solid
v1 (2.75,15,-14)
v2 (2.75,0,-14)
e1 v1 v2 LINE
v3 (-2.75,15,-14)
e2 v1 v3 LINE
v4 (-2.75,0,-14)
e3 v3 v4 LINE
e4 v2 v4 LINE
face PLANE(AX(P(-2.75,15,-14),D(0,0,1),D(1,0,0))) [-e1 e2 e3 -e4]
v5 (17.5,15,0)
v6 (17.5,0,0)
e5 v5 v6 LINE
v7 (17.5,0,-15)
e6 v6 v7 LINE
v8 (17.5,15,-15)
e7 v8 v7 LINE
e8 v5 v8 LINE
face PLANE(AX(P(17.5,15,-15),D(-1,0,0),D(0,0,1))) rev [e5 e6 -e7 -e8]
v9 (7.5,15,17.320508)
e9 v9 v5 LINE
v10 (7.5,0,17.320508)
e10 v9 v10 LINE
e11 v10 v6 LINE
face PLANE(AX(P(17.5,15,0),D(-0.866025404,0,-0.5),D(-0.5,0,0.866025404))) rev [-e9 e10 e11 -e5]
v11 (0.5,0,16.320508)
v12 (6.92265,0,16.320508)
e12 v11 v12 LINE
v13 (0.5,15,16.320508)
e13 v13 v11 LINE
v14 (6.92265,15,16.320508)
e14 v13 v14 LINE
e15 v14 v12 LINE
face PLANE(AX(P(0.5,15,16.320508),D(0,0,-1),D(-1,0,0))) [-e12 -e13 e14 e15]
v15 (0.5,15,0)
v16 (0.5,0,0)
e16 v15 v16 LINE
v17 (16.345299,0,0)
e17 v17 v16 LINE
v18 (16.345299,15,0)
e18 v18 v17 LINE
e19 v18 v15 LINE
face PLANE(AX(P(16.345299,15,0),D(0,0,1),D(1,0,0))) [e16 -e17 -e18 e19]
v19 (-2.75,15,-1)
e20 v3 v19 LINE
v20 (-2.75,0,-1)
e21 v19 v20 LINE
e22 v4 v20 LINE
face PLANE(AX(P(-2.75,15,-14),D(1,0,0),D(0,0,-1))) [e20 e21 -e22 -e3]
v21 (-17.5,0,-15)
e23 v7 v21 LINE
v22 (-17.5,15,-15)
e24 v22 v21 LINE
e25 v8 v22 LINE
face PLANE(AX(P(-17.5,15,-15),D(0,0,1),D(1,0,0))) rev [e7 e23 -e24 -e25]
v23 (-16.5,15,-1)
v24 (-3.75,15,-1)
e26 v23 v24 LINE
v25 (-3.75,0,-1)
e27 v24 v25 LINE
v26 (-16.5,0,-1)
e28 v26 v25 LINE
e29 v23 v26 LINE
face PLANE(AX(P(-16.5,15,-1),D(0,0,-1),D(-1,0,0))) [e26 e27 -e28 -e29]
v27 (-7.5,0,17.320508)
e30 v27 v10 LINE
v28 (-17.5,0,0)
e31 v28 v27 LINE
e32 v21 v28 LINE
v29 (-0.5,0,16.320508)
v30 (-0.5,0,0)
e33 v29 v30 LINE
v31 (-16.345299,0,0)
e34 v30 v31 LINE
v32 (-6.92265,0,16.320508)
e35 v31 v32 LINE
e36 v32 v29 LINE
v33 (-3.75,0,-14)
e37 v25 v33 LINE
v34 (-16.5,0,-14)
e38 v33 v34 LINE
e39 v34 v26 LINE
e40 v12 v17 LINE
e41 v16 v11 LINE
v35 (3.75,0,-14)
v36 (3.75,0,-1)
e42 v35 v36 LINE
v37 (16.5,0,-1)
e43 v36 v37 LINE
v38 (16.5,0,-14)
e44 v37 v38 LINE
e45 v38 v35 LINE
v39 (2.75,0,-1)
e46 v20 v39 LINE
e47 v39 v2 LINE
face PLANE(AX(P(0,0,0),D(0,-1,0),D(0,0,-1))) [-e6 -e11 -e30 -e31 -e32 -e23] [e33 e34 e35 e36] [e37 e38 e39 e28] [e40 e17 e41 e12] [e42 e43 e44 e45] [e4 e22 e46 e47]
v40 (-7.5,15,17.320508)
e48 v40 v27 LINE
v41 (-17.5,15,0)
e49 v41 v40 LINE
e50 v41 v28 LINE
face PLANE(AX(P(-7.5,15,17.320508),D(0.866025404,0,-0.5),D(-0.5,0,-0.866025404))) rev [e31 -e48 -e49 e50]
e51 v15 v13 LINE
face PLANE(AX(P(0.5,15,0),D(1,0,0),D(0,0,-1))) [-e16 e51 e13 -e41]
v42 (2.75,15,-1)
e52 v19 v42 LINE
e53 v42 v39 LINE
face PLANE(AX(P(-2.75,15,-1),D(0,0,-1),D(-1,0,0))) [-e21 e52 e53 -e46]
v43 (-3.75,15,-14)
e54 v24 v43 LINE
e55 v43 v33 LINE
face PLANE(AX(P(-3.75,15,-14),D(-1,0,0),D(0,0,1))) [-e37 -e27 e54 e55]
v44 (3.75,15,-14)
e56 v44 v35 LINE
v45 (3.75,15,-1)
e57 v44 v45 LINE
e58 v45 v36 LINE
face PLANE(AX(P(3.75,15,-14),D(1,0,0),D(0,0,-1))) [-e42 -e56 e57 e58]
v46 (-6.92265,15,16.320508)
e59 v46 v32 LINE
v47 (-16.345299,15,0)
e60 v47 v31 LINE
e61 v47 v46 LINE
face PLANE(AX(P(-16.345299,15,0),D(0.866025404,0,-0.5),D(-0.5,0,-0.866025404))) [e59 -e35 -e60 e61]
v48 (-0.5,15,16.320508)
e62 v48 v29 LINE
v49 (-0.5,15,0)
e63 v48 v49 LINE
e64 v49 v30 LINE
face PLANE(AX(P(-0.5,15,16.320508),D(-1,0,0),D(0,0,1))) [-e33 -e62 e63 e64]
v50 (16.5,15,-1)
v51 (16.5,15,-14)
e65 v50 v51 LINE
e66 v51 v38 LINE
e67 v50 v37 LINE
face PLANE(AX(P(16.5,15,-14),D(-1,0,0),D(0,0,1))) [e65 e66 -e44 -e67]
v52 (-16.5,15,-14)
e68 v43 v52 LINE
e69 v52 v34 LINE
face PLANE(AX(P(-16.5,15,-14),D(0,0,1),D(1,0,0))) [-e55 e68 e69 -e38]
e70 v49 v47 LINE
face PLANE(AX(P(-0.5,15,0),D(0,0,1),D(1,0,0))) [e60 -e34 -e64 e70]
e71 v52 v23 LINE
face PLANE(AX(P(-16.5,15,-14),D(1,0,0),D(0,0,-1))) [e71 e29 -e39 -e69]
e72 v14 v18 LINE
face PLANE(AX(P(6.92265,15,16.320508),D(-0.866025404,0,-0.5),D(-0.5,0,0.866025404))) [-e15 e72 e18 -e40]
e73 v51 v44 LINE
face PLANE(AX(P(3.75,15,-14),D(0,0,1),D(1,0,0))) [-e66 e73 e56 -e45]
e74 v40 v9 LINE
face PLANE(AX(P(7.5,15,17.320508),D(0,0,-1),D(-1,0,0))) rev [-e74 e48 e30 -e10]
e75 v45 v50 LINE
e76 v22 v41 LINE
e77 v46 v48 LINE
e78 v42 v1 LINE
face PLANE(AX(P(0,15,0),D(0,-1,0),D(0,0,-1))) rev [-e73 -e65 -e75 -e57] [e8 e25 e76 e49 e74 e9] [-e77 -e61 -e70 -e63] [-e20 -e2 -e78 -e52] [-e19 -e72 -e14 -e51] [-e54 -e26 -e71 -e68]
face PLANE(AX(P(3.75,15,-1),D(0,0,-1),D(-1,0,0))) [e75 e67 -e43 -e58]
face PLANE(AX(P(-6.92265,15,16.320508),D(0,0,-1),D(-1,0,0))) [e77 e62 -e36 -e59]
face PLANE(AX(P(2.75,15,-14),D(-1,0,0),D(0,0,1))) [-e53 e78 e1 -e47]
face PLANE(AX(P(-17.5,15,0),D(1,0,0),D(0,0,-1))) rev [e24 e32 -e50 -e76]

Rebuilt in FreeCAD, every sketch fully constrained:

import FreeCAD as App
import Part
import Sketcher

V = App.Vector
Q = App.Units.Quantity


def add_polygon(sketch, points):
    """Adds a closed chain of lines whose ends are joined by coincident constraints."""
    first, n = sketch.GeometryCount, len(points)
    for a, b in zip(points, points[1:] + points[:1]):
        sketch.addGeometry(Part.LineSegment(App.Vector(*a, 0), App.Vector(*b, 0)), False)
    for i in range(n):
        sketch.addConstraint(Sketcher.Constraint("Coincident", first + i, 2, first + (i + 1) % n, 1))

doc = App.newDocument("Part")
body = doc.addObject("PartDesign::Body", "Body")

# Sketch on XZ plane
sketch1 = body.newObject("Sketcher::SketchObject", "Sketch")
sketch1.AttachmentSupport = (doc.getObject("XZ_Plane"), [""])
sketch1.MapMode = "FlatFace"
add_polygon(sketch1, [(17.5, -15), (-17.5, -15), (-17.5, 0), (-7.5, 17.320508), (7.5, 17.320508), (17.5, 0)])  # lines 0-5
add_polygon(sketch1, [(0.5, 0), (16.345299, 0), (6.92265, 16.320508), (0.5, 16.320508)])  # lines 6-9
add_polygon(sketch1, [(-16.345299, 0), (-0.5, 0), (-0.5, 16.320508), (-6.92265, 16.320508)])  # lines 10-13
add_polygon(sketch1, [(3.75, -1), (3.75, -14), (16.5, -14), (16.5, -1)])  # lines 14-17
add_polygon(sketch1, [(-2.75, -1), (-2.75, -14), (2.75, -14), (2.75, -1)])  # lines 18-21
add_polygon(sketch1, [(-16.5, -1), (-16.5, -14), (-3.75, -14), (-3.75, -1)])  # lines 22-25
sketch1.addConstraint(Sketcher.Constraint("Horizontal", 0))
sketch1.addConstraint(Sketcher.Constraint("Vertical", 1))
sketch1.addConstraint(Sketcher.Constraint("Horizontal", 3))
sketch1.addConstraint(Sketcher.Constraint("Vertical", 5))
sketch1.addConstraint(Sketcher.Constraint("Horizontal", 6))
sketch1.addConstraint(Sketcher.Constraint("Horizontal", 8))
sketch1.addConstraint(Sketcher.Constraint("Vertical", 9))
sketch1.addConstraint(Sketcher.Constraint("Horizontal", 10))
sketch1.addConstraint(Sketcher.Constraint("Vertical", 11))
sketch1.addConstraint(Sketcher.Constraint("Horizontal", 12))
sketch1.addConstraint(Sketcher.Constraint("Vertical", 14))
sketch1.addConstraint(Sketcher.Constraint("Horizontal", 15))
sketch1.addConstraint(Sketcher.Constraint("Vertical", 16))
sketch1.addConstraint(Sketcher.Constraint("Horizontal", 17))
sketch1.addConstraint(Sketcher.Constraint("Vertical", 18))
sketch1.addConstraint(Sketcher.Constraint("Horizontal", 19))
sketch1.addConstraint(Sketcher.Constraint("Vertical", 20))
sketch1.addConstraint(Sketcher.Constraint("Horizontal", 21))
sketch1.addConstraint(Sketcher.Constraint("Vertical", 22))
sketch1.addConstraint(Sketcher.Constraint("Horizontal", 23))
sketch1.addConstraint(Sketcher.Constraint("Vertical", 24))
sketch1.addConstraint(Sketcher.Constraint("Horizontal", 25))
sketch1.addConstraint(Sketcher.Constraint("Symmetric", 1, 2, 4, 2, -1, 1))
sketch1.addConstraint(Sketcher.Constraint("Symmetric", 9, 2, 10, 2, -1, 1))
sketch1.addConstraint(Sketcher.Constraint("Symmetric", 7, 2, 12, 2, -2))
sketch1.addConstraint(Sketcher.Constraint("Symmetric", 6, 2, 13, 2, -2))
sketch1.addConstraint(Sketcher.Constraint("Symmetric", 15, 2, 22, 2, -2))
sketch1.addConstraint(Sketcher.Constraint("Symmetric", 17, 2, 24, 2, -2))
sketch1.addConstraint(Sketcher.Constraint("PointOnObject", 1, 2, -1))
sketch1.addConstraint(Sketcher.Constraint("Parallel", 4, 7))
sketch1.addConstraint(Sketcher.Constraint("Parallel", 2, 13))
sketch1.addConstraint(Sketcher.Constraint("Horizontal", 15, 2, 18, 2))
sketch1.addConstraint(Sketcher.Constraint("Horizontal", 17, 2, 20, 2))
sketch1.addConstraint(Sketcher.Constraint("Equal", 3, 1))
sketch1.addConstraint(Sketcher.Constraint("DistanceX", 0, 2, 0, 1, 35.0))
sketch1.addConstraint(Sketcher.Constraint("DistanceX", 3, 1, 3, 2, 15.0))
sketch1.addConstraint(Sketcher.Constraint("DistanceY", 14, 2, 14, 1, 13.0))
sketch1.addConstraint(Sketcher.Constraint("Angle", 2, Q("60 deg")))
sketch1.addConstraint(Sketcher.Constraint("DistanceX", 19, 1, 19, 2, 5.5))
sketch1.addConstraint(Sketcher.Constraint("DistanceY", 14, 2, -1, 1, 14.0))
sketch1.addConstraint(Sketcher.Constraint("DistanceY", 7, 2, 3, 2, 1.0))
sketch1.addConstraint(Sketcher.Constraint("DistanceX", 8, 2, 3, 2, 7.0))
sketch1.addConstraint(Sketcher.Constraint("DistanceX", 15, 2, 5, 2, 1.0))
sketch1.addConstraint(Sketcher.Constraint("DistanceX", 19, 2, 14, 2, 1.0))
sketch1.addConstraint(Sketcher.Constraint("DistanceX", 23, 2, 18, 2, 1.0))
sketch1.addConstraint(Sketcher.Constraint("DistanceX", 6, 1, 6, 2, 15.845299))
pad1 = body.newObject("PartDesign::Pad", "Pad")
pad1.Profile = sketch1
pad1.Length = 15
pad1.Reversed = True

doc.recompute()
